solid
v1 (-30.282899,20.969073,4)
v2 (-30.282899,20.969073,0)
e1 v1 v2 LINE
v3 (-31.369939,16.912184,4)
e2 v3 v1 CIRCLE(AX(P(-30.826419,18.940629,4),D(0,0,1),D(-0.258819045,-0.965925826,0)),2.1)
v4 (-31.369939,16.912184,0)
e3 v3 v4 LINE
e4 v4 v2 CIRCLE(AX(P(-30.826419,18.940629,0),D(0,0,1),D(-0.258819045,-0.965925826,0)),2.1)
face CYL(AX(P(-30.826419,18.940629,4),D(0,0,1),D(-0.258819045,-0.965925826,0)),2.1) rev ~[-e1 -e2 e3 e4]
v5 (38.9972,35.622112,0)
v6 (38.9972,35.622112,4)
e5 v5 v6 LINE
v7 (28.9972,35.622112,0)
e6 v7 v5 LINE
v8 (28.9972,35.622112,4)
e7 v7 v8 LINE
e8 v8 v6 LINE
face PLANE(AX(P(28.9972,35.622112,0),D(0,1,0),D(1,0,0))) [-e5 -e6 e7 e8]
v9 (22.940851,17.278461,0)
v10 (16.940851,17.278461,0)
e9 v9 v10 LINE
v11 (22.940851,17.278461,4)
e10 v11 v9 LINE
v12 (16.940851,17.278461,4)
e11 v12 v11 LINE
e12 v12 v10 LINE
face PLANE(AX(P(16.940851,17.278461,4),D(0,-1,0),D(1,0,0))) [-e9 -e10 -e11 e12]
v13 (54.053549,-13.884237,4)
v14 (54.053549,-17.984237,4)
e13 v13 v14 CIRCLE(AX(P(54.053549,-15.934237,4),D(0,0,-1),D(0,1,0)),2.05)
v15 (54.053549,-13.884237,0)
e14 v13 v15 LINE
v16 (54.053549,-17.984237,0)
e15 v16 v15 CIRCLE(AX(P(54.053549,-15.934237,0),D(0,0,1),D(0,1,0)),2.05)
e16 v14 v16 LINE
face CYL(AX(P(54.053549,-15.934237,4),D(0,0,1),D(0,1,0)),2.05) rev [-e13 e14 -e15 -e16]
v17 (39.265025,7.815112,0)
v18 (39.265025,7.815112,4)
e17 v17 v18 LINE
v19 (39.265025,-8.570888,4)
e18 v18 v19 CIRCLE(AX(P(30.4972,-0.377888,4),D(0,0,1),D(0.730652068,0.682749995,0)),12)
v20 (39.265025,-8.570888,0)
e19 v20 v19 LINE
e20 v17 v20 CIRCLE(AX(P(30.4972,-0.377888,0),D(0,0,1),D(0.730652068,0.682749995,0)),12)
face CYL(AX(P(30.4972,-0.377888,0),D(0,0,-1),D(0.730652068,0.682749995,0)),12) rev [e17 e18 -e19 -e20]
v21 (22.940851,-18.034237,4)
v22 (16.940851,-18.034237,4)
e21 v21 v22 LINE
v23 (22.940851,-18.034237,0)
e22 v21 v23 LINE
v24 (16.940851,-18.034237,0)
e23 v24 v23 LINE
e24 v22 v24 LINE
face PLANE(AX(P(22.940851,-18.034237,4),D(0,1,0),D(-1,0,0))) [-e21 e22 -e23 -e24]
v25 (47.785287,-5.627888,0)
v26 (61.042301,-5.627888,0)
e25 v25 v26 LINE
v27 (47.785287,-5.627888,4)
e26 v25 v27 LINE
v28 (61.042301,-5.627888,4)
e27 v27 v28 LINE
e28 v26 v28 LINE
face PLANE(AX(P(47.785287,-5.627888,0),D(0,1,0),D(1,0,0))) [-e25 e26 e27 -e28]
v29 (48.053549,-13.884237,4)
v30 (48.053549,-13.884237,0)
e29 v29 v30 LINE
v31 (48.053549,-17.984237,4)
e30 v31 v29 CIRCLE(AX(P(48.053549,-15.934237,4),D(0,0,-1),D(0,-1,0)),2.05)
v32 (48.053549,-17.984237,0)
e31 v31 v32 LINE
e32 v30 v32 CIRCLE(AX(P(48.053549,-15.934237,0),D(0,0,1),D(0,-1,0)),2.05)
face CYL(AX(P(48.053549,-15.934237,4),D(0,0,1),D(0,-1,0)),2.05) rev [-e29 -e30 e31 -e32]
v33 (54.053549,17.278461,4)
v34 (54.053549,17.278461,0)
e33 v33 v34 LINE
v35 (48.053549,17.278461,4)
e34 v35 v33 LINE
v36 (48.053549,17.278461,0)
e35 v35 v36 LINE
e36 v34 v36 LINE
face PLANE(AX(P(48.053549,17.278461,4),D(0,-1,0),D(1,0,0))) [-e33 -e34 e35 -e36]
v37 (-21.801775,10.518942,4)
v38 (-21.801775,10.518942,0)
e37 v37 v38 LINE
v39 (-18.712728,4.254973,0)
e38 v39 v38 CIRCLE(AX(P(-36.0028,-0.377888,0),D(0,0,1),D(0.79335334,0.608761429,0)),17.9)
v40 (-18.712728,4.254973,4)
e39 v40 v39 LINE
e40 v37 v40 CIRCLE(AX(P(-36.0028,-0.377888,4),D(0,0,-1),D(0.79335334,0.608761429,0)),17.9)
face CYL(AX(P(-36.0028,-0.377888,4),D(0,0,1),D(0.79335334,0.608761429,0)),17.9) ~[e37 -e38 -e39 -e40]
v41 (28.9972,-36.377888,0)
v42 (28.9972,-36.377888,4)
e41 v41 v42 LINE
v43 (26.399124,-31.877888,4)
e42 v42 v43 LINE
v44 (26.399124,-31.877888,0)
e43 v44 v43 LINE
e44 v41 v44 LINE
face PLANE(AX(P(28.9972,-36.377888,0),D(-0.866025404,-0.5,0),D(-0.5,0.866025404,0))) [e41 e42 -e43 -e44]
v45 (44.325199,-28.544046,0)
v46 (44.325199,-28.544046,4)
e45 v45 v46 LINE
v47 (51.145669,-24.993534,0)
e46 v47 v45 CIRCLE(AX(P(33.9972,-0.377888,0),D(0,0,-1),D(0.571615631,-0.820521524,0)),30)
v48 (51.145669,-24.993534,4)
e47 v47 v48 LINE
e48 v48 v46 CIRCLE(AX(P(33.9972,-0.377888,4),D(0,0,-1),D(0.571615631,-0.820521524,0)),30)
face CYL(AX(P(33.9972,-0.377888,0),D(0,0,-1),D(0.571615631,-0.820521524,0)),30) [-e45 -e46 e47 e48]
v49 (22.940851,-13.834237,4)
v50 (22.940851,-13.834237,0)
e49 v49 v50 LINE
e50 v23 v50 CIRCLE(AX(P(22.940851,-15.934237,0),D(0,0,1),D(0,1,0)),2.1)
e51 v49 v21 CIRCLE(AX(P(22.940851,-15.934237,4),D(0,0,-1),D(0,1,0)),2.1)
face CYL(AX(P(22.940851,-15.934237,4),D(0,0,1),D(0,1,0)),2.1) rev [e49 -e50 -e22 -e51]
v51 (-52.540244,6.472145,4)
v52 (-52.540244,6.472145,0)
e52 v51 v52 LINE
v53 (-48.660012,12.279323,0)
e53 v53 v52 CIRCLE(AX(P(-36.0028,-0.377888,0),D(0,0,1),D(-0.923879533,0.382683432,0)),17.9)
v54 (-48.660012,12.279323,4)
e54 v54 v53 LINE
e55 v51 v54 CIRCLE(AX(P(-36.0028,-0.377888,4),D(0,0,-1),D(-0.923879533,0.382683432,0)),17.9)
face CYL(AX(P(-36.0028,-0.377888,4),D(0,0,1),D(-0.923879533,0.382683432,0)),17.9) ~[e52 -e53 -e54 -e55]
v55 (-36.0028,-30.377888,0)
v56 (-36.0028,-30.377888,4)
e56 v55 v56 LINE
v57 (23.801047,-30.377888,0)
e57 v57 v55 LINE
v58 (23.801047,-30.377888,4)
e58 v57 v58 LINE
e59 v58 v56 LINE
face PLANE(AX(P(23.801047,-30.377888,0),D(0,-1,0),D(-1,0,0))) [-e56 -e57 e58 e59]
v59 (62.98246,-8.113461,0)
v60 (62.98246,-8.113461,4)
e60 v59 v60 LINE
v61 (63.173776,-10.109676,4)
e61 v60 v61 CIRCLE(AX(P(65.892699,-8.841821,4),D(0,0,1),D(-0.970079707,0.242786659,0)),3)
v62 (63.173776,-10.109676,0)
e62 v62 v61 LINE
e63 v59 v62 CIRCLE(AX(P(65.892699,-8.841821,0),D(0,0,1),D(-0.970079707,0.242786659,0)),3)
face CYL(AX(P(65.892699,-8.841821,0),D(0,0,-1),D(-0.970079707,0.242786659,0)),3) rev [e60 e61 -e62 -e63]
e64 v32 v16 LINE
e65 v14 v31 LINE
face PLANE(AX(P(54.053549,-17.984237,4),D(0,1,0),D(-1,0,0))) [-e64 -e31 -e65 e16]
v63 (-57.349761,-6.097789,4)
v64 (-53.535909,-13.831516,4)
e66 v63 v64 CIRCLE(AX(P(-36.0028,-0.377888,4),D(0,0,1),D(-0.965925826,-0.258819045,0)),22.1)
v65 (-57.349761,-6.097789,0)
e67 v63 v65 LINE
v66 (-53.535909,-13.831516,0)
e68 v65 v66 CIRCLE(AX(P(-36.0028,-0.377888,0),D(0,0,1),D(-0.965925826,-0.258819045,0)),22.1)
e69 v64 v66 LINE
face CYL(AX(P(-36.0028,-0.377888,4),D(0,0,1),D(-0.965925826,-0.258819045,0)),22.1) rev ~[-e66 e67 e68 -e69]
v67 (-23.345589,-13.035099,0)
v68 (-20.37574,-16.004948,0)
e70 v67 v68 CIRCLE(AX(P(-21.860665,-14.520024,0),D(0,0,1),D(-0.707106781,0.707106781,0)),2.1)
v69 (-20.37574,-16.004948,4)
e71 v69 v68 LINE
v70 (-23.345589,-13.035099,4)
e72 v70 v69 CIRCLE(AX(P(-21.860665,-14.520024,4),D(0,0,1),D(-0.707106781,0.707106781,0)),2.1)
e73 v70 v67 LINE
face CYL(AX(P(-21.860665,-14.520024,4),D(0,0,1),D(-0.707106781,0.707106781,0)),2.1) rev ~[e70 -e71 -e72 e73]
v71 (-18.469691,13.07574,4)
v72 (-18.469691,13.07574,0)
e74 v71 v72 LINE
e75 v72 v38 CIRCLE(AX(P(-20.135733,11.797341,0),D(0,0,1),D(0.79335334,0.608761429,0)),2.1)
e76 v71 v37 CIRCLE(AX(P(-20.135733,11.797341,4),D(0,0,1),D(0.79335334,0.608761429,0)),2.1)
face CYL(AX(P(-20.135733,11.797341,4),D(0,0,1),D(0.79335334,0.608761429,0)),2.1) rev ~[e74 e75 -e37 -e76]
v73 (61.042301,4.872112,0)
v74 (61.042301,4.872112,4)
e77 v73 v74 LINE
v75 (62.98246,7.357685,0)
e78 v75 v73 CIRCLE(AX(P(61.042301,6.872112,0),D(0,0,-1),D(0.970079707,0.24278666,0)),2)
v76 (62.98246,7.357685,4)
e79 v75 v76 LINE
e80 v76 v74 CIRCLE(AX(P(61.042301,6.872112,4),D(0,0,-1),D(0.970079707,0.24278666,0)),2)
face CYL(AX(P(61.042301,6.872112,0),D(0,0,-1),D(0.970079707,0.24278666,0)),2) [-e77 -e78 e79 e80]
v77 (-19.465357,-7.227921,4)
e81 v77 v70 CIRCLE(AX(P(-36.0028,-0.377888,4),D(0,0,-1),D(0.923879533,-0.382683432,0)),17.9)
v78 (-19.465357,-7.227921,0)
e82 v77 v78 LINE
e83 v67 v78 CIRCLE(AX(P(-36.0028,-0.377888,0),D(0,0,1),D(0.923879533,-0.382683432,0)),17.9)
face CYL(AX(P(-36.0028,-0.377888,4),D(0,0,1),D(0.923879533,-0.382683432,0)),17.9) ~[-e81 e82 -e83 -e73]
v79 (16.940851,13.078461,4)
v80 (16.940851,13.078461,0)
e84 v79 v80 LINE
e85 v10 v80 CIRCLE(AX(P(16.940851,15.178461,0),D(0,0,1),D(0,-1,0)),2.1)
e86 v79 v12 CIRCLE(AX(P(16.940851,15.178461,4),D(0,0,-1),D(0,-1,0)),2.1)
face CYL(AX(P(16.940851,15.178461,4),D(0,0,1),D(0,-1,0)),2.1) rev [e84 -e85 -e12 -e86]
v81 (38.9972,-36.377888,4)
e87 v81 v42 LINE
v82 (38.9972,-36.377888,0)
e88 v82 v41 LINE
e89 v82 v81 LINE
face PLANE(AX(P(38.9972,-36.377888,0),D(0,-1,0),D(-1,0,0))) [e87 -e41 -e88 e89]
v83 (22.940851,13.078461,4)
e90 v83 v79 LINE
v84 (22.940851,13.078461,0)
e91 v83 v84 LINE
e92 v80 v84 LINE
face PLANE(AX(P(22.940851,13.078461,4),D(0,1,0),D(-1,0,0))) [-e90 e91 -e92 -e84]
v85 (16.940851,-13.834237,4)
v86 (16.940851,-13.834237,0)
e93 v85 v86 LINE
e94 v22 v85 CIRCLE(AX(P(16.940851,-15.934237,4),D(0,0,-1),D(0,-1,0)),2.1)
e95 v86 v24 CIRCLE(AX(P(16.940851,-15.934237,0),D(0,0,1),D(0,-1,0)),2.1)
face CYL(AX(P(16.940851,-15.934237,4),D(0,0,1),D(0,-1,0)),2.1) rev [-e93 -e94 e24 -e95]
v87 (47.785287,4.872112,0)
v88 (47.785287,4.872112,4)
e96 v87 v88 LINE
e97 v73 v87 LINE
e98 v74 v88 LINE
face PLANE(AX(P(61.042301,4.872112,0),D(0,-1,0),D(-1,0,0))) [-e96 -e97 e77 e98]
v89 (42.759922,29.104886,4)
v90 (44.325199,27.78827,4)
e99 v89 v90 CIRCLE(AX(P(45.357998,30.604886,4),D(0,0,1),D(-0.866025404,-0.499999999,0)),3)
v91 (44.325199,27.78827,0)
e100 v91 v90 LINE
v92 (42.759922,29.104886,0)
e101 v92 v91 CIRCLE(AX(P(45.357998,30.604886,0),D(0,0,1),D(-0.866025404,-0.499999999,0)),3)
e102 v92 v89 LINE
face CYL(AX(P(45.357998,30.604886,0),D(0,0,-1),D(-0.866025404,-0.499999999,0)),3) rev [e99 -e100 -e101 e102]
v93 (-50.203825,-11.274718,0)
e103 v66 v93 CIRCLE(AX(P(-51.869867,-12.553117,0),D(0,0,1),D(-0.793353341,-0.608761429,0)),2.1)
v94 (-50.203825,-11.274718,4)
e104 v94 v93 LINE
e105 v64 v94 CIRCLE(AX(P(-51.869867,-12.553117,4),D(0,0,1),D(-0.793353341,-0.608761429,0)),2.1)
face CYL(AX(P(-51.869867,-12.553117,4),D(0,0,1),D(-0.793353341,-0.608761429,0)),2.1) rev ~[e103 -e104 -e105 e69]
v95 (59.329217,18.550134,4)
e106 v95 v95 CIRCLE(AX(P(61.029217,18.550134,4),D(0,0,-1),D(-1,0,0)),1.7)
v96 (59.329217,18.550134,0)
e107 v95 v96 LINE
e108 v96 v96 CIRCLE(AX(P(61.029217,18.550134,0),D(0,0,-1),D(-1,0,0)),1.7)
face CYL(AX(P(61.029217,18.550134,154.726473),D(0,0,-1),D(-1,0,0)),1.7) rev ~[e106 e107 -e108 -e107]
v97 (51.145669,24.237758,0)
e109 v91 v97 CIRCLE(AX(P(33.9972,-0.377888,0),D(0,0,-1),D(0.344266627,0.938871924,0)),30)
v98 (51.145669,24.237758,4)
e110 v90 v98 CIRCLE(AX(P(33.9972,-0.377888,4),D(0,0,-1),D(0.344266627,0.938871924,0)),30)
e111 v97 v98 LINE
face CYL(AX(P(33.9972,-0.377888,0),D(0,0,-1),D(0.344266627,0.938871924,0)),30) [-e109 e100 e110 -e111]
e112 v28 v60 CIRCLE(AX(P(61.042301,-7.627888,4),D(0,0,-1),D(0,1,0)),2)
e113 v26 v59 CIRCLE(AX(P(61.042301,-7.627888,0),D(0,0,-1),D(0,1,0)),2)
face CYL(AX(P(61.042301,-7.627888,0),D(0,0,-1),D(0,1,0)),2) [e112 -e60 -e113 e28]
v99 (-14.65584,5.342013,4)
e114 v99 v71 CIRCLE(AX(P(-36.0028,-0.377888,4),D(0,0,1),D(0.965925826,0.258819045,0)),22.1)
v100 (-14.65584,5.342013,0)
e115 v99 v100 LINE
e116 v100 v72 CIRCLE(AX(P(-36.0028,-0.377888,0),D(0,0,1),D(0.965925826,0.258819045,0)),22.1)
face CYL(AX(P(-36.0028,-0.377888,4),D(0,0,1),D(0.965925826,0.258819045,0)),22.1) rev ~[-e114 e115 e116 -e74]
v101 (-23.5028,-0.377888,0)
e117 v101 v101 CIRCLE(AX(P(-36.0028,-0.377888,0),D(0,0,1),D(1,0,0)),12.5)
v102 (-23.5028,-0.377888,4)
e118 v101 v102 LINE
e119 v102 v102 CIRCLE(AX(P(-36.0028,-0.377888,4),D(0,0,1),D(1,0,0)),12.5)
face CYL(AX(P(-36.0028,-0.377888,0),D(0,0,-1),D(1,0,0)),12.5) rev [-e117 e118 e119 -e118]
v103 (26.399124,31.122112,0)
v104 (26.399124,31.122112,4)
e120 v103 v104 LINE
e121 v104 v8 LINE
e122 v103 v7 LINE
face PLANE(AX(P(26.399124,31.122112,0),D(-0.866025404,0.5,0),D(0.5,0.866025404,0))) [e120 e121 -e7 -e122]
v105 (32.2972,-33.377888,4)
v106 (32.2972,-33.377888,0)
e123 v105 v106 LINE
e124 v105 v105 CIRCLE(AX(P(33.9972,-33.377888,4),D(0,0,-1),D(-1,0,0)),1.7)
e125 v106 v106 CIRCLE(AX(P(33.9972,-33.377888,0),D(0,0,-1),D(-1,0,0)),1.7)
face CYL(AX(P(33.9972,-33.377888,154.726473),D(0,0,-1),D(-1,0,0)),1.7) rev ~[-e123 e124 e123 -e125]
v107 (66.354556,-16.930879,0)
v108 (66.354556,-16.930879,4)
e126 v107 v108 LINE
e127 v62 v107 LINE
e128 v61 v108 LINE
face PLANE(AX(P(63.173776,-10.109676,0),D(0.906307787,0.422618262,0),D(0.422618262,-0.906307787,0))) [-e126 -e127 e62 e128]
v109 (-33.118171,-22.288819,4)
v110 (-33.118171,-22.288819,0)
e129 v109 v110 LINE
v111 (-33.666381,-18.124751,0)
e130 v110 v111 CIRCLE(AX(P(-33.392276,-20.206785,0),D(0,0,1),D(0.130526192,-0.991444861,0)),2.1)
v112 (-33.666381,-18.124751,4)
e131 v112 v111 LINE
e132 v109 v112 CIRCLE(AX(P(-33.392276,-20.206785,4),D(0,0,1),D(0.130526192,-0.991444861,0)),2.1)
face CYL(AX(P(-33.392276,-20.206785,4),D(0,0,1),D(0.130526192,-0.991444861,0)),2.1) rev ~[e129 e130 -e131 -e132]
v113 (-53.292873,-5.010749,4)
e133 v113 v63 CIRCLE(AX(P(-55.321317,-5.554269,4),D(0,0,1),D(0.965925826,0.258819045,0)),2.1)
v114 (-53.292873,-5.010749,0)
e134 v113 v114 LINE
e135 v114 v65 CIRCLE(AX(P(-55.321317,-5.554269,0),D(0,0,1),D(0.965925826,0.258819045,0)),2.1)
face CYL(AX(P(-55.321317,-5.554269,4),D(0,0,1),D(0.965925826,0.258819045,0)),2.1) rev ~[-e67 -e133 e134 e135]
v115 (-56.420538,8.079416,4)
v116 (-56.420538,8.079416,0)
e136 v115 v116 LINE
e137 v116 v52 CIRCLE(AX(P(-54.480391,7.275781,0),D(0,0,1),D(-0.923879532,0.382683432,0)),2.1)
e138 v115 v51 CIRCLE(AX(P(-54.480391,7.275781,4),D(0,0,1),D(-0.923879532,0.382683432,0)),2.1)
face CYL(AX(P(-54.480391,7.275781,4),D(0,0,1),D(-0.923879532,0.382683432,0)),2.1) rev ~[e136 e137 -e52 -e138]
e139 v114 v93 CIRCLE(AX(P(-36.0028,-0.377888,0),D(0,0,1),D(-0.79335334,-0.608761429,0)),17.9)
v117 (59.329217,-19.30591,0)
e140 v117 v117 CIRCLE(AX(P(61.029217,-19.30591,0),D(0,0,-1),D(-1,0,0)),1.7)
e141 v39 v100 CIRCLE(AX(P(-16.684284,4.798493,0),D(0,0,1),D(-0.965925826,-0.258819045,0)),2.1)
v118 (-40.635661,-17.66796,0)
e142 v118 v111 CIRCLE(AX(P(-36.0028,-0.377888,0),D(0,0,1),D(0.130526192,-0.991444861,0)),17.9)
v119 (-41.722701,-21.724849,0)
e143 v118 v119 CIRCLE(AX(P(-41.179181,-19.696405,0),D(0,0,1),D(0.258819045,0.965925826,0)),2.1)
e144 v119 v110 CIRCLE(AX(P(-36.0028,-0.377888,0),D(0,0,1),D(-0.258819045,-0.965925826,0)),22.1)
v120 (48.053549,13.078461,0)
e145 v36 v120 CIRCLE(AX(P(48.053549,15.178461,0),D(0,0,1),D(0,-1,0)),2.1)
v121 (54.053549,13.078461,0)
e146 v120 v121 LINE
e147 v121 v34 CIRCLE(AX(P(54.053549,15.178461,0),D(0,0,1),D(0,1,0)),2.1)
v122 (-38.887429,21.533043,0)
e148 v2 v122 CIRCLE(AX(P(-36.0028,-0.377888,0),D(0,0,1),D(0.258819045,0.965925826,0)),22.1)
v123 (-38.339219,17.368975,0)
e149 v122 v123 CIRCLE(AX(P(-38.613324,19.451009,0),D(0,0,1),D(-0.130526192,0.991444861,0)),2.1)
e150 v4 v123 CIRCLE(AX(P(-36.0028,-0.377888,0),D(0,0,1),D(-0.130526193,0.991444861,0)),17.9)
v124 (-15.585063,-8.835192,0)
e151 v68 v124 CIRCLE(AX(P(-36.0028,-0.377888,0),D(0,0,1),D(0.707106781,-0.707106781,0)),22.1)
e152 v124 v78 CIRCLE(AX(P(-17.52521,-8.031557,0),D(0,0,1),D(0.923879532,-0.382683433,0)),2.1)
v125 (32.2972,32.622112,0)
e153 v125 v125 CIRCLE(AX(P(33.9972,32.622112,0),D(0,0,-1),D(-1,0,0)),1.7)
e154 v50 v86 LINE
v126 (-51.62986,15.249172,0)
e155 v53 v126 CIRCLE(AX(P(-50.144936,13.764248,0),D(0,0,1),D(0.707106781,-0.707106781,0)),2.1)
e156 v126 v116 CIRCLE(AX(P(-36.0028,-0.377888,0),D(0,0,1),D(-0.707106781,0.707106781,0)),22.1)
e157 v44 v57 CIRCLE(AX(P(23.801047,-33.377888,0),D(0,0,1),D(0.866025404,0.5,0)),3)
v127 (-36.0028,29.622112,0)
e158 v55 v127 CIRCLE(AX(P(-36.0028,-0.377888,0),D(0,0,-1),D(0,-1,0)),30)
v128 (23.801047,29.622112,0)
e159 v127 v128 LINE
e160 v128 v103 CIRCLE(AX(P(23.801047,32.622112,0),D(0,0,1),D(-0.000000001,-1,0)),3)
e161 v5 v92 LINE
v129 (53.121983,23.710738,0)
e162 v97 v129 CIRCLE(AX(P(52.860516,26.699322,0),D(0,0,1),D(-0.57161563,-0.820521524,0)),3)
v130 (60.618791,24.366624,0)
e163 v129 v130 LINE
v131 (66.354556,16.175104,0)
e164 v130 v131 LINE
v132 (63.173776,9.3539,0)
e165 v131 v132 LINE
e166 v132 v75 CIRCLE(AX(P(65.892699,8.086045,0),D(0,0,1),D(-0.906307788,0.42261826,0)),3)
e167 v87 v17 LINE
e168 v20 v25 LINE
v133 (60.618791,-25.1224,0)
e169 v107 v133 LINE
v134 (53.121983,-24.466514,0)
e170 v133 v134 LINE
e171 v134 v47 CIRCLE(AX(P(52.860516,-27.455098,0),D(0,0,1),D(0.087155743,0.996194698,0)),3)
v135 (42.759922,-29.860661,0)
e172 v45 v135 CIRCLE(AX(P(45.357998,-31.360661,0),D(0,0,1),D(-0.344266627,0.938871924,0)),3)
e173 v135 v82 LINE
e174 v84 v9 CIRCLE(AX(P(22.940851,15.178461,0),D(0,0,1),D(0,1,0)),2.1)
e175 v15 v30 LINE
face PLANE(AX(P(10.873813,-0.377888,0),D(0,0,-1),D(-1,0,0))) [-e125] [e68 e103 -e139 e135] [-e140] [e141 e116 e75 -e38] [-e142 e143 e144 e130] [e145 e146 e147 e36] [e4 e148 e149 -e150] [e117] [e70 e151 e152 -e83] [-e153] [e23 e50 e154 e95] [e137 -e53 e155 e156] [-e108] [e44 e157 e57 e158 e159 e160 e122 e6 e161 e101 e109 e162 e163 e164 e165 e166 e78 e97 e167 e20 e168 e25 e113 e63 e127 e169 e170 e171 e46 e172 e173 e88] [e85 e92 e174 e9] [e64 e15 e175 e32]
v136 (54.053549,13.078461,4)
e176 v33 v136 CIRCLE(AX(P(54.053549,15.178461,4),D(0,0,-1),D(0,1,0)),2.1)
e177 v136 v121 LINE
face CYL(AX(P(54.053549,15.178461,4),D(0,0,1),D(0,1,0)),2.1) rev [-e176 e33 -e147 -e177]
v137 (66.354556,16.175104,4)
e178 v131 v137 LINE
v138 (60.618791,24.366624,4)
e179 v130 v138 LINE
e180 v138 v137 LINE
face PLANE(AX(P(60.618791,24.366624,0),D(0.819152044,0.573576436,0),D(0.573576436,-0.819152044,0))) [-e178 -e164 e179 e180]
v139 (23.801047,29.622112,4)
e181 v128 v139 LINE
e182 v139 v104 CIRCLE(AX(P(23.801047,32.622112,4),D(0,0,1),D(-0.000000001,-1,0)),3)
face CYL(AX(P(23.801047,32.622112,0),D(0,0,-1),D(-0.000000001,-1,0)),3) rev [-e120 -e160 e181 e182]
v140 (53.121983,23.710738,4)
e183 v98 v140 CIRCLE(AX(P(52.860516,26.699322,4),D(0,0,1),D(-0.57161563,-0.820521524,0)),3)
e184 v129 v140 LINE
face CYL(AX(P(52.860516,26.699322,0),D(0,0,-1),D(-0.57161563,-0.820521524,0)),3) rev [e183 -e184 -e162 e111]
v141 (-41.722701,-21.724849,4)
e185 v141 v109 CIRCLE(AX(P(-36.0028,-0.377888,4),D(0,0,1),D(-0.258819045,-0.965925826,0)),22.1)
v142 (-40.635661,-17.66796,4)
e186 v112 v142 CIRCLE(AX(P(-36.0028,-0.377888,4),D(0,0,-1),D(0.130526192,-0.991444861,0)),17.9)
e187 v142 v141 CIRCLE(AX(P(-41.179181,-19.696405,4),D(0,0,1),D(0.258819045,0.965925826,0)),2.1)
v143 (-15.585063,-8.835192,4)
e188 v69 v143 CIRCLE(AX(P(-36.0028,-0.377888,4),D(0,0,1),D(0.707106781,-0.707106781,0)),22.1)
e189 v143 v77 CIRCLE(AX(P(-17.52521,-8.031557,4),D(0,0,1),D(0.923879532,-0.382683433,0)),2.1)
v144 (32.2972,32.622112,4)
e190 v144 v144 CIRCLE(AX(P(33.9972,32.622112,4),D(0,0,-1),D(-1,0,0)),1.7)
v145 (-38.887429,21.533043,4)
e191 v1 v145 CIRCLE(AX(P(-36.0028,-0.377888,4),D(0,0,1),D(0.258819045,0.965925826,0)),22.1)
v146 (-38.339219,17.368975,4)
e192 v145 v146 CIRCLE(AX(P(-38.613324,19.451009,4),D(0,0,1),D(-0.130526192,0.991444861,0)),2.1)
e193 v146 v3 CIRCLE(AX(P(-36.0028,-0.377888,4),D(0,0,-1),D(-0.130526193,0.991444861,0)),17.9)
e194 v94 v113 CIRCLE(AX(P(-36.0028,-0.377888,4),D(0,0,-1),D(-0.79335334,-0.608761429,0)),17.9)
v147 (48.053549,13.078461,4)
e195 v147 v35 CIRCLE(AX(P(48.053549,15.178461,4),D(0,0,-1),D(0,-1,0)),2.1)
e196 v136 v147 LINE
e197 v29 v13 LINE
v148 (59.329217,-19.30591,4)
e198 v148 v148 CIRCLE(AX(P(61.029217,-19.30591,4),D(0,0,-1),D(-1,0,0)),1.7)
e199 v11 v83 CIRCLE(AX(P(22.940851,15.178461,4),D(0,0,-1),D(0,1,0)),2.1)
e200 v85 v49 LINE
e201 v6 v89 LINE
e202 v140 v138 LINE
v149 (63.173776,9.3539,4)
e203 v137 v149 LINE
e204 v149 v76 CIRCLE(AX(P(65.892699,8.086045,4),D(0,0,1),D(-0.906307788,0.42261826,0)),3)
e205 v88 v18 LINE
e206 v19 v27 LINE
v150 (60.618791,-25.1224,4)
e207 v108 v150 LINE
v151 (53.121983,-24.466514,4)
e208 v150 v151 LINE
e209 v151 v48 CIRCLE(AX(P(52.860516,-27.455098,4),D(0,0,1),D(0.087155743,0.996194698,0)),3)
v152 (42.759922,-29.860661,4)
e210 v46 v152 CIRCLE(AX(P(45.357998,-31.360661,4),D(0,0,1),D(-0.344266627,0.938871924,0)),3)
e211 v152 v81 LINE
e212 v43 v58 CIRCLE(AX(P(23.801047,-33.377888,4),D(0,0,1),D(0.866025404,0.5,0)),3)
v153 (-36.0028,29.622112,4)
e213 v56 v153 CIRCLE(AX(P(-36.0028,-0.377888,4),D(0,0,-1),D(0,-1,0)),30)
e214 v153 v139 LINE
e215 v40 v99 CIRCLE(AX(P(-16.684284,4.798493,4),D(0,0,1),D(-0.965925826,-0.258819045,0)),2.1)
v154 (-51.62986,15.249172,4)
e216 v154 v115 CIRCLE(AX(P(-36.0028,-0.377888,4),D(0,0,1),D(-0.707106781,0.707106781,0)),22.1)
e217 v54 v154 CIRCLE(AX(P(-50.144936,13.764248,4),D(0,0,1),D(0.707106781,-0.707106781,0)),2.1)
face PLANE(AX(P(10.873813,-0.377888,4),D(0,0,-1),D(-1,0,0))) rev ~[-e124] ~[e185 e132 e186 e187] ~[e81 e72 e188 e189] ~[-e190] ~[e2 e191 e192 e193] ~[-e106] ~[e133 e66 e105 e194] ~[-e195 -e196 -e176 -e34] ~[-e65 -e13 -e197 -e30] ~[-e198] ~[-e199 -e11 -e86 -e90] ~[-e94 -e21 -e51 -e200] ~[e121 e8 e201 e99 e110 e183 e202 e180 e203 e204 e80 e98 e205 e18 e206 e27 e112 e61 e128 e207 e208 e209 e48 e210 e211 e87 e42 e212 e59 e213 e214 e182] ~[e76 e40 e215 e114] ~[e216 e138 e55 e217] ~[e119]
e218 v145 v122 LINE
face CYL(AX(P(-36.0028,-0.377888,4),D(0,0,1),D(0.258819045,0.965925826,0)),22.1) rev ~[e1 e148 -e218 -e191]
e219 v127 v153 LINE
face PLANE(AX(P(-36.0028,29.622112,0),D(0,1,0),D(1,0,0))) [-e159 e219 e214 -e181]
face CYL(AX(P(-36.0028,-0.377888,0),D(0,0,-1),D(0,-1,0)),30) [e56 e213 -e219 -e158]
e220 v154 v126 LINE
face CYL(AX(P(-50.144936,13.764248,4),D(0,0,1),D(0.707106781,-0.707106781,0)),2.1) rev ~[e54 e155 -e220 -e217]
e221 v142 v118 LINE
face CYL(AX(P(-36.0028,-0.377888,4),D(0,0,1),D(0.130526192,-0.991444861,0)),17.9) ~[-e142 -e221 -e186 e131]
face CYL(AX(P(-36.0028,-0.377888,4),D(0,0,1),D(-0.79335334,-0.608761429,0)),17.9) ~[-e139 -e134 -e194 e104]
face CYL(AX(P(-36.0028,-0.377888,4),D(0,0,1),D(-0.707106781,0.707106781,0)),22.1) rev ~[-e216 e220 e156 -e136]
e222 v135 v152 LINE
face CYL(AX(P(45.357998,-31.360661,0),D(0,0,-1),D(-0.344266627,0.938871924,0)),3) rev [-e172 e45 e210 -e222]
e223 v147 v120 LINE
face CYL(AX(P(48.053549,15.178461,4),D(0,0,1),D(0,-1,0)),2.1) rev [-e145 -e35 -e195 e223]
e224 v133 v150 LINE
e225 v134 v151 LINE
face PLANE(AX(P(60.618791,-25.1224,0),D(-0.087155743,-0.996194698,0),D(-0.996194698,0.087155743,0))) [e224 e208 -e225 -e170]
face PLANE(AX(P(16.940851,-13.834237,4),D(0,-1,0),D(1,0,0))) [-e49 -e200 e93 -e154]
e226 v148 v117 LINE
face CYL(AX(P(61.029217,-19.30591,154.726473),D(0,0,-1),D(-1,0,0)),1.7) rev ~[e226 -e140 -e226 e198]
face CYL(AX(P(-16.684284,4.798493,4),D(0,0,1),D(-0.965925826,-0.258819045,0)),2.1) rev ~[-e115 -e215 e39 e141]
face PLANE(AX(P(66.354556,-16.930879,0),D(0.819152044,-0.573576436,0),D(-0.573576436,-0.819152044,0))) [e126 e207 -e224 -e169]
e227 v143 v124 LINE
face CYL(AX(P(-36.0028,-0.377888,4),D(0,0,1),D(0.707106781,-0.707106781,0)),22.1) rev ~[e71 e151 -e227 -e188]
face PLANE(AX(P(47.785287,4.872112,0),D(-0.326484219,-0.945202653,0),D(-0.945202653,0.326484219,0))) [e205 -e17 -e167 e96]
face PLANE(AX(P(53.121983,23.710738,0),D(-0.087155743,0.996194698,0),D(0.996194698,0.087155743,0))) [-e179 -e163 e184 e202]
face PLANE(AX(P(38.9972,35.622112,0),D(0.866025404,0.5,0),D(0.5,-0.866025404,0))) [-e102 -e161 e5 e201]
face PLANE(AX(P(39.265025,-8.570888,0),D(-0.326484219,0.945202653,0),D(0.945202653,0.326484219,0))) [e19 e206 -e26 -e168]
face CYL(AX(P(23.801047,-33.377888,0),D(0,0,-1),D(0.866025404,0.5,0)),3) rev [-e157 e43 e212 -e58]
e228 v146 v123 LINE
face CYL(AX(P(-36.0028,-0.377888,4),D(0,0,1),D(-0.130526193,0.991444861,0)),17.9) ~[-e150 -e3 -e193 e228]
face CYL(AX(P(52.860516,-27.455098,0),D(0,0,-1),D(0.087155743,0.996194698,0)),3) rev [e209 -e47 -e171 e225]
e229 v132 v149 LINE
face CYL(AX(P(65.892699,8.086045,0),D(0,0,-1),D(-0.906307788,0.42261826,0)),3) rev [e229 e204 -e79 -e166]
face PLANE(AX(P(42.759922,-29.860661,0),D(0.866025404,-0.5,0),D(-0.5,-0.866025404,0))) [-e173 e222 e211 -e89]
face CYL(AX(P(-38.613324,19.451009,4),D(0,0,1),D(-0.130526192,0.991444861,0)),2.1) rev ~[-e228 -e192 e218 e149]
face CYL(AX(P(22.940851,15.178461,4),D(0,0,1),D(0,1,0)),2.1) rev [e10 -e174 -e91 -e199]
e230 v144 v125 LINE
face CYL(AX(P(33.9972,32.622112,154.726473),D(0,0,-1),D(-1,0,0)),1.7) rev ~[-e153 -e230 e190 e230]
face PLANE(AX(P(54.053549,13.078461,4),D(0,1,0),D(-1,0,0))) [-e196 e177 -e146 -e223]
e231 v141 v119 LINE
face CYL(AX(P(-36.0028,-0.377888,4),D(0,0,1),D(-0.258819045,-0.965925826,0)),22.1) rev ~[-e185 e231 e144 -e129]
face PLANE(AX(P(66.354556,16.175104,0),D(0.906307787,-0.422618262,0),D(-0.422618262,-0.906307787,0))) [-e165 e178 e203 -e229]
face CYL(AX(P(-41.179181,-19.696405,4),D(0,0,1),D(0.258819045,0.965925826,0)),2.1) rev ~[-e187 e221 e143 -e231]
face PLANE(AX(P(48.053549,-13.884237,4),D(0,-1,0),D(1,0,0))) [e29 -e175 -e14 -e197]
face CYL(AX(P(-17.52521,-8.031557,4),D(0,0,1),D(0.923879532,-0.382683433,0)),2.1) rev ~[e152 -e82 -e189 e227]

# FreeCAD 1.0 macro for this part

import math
import FreeCAD as App
import Part
import Sketcher
from FreeCAD import Vector
Q = App.Units.Quantity

doc = App.newDocument("Part")
body = doc.addObject("PartDesign::Body", "Body")

sketch1 = body.newObject("Sketcher::SketchObject", "Sketch")
sketch1.AttachmentSupport = (doc.getObject("XY_Plane"), [""])
sketch1.MapMode = "FlatFace"
sketch1.addGeometry([
    Part.LineSegment(Vector(53.1, -24.5, 0), Vector(60.6, -25.1, 0)),
    Part.LineSegment(Vector(60.6, -25.1, 0), Vector(66.4, -16.9, 0)),
    Part.LineSegment(Vector(66.4, -16.9, 0), Vector(63.2, -10.1, 0)),
    Part.ArcOfCircle(Part.Circle(Vector(65.9, -8.8, 0), Vector(0, 0, 1), 3), math.radians(166), math.radians(205)),
    Part.ArcOfCircle(Part.Circle(Vector(61, -7.6, 0), Vector(0, 0, 1), 2), math.radians(-14), math.radians(90)),
    Part.LineSegment(Vector(61, -5.6, 0), Vector(47.8, -5.6, 0)),
    Part.LineSegment(Vector(47.8, -5.6, 0), Vector(39.3, -8.6, 0)),
    Part.ArcOfCircle(Part.Circle(Vector(30.5, -0.4, 0), Vector(0, 0, 1), 12), math.radians(43), math.radians(317)),
    Part.LineSegment(Vector(39.3, 7.8, 0), Vector(47.8, 4.9, 0)),
    Part.LineSegment(Vector(47.8, 4.9, 0), Vector(61, 4.9, 0)),
    Part.ArcOfCircle(Part.Circle(Vector(61, 6.9, 0), Vector(0, 0, 1), 2), math.radians(-90), math.radians(14)),
    Part.ArcOfCircle(Part.Circle(Vector(65.9, 8.1, 0), Vector(0, 0, 1), 3), math.radians(155), math.radians(194)),
    Part.LineSegment(Vector(63.2, 9.4, 0), Vector(66.4, 16.2, 0)),
    Part.LineSegment(Vector(66.4, 16.2, 0), Vector(60.6, 24.4, 0)),
    Part.LineSegment(Vector(60.6, 24.4, 0), Vector(53.1, 23.7, 0)),
    Part.ArcOfCircle(Part.Circle(Vector(52.9, 26.7, 0), Vector(0, 0, 1), 3), math.radians(-125), math.radians(-85)),
    Part.ArcOfCircle(Part.Circle(Vector(34, -0.4, 0), Vector(0, 0, 1), 30), math.radians(55.14), math.radians(69.86)),
    Part.ArcOfCircle(Part.Circle(Vector(45.4, 30.6, 0), Vector(0, 0, 1), 3), math.radians(-150), math.radians(-110)),
    Part.LineSegment(Vector(42.8, 29.1, 0), Vector(39, 35.6, 0)),
    Part.LineSegment(Vector(39, 35.6, 0), Vector(29, 35.6, 0)),
    Part.LineSegment(Vector(29, 35.6, 0), Vector(26.4, 31.1, 0)),
    Part.ArcOfCircle(Part.Circle(Vector(23.8, 32.6, 0), Vector(0, 0, 1), 3), math.radians(-90), math.radians(-30)),
    Part.LineSegment(Vector(23.8, 29.6, 0), Vector(-36, 29.6, 0)),
    Part.ArcOfCircle(Part.Circle(Vector(-36, -0.4, 0), Vector(0, 0, 1), 30), math.radians(90), math.radians(270)),
    Part.LineSegment(Vector(-36, -30.4, 0), Vector(23.8, -30.4, 0)),
    Part.ArcOfCircle(Part.Circle(Vector(23.8, -33.4, 0), Vector(0, 0, 1), 3), math.radians(30), math.radians(90)),
    Part.LineSegment(Vector(26.4, -31.9, 0), Vector(29, -36.4, 0)),
    Part.LineSegment(Vector(29, -36.4, 0), Vector(39, -36.4, 0)),
    Part.LineSegment(Vector(39, -36.4, 0), Vector(42.8, -29.9, 0)),
    Part.ArcOfCircle(Part.Circle(Vector(45.4, -31.4, 0), Vector(0, 0, 1), 3), math.radians(110), math.radians(150)),
    Part.ArcOfCircle(Part.Circle(Vector(34, -0.4, 0), Vector(0, 0, 1), 30), math.radians(-69.86), math.radians(-55.14)),
    Part.ArcOfCircle(Part.Circle(Vector(52.9, -27.5, 0), Vector(0, 0, 1), 3), math.radians(85), math.radians(125)),
    Part.Circle(Vector(-36, -0.4, 0), Vector(0, 0, 1), 12.5),
], False)
sketch1.addConstraint([
    Sketcher.Constraint("Coincident", 0, 2, 1, 1),
    Sketcher.Constraint("Coincident", 1, 2, 2, 1),
    Sketcher.Constraint("Tangent", 2, 2, 3, 2),
    Sketcher.Constraint("Tangent", 3, 1, 4, 1),
    Sketcher.Constraint("Tangent", 4, 2, 5, 1),
    Sketcher.Constraint("Coincident", 5, 2, 6, 1),
    Sketcher.Constraint("Coincident", 6, 2, 7, 2),
    Sketcher.Constraint("Coincident", 7, 1, 8, 1),
    Sketcher.Constraint("Coincident", 8, 2, 9, 1),
    Sketcher.Constraint("Tangent", 9, 2, 10, 1),
    Sketcher.Constraint("Tangent", 10, 2, 11, 2),
    Sketcher.Constraint("Tangent", 11, 1, 12, 1),
    Sketcher.Constraint("Coincident", 12, 2, 13, 1),
    Sketcher.Constraint("Coincident", 13, 2, 14, 1),
    Sketcher.Constraint("Tangent", 14, 2, 15, 2),
    Sketcher.Constraint("Tangent", 15, 1, 16, 1),
    Sketcher.Constraint("Tangent", 16, 2, 17, 2),
    Sketcher.Constraint("Tangent", 17, 1, 18, 1),
    Sketcher.Constraint("Coincident", 18, 2, 19, 1),
    Sketcher.Constraint("Coincident", 19, 2, 20, 1),
    Sketcher.Constraint("Tangent", 20, 2, 21, 2),
    Sketcher.Constraint("Tangent", 21, 1, 22, 1),
    Sketcher.Constraint("Tangent", 22, 2, 23, 1),
    Sketcher.Constraint("Tangent", 23, 2, 24, 1),
    Sketcher.Constraint("Tangent", 24, 2, 25, 2),
    Sketcher.Constraint("Tangent", 25, 1, 26, 1),
    Sketcher.Constraint("Coincident", 26, 2, 27, 1),
    Sketcher.Constraint("Coincident", 27, 2, 28, 1),
    Sketcher.Constraint("Tangent", 28, 2, 29, 2),
    Sketcher.Constraint("Tangent", 29, 1, 30, 1),
    Sketcher.Constraint("Tangent", 30, 2, 31, 2),
    Sketcher.Constraint("Tangent", 31, 1, 0, 1),
    Sketcher.Constraint("Horizontal", 5),
    Sketcher.Constraint("Horizontal", 9),
    Sketcher.Constraint("Horizontal", 19),
    Sketcher.Constraint("Horizontal", 22),
    Sketcher.Constraint("Horizontal", 24),
    Sketcher.Constraint("Horizontal", 27),
    Sketcher.Constraint("Coincident", 30, 3, 16, 3),
    Sketcher.Constraint("Coincident", 32, 3, 23, 3),
    Sketcher.Constraint("Equal", 4, 10),
    Sketcher.Constraint("Equal", 3, 11),
    Sketcher.Constraint("Equal", 11, 15),
    Sketcher.Constraint("Equal", 15, 17),
    Sketcher.Constraint("Equal", 17, 21),
    Sketcher.Constraint("Equal", 16, 23),
    Sketcher.Constraint("Equal", 21, 25),
    Sketcher.Constraint("Equal", 25, 29),
    Sketcher.Constraint("Equal", 23, 30),
    Sketcher.Constraint("Equal", 29, 31),
    Sketcher.Constraint("Parallel", 18, 26),
    Sketcher.Constraint("Parallel", 20, 28),
    Sketcher.Constraint("Horizontal", 7, 3, 16, 3),
    Sketcher.Constraint("Horizontal", 16, 3, 23, 3),
    Sketcher.Constraint("Vertical", 4, 3, 10, 3),
    Sketcher.Constraint("Vertical", 3, 3, 11, 3),
    Sketcher.Constraint("Vertical", 21, 3, 25, 3),
    Sketcher.Constraint("Vertical", 17, 3, 29, 3),
    Sketcher.Constraint("Vertical", 15, 3, 31, 3),
    Sketcher.Constraint("Vertical", 6, 2, 7, 1),
    Sketcher.Constraint("Vertical", 5, 2, 8, 2),
    Sketcher.Constraint("Vertical", 2, 2, 11, 1),
    Sketcher.Constraint("Vertical", 1, 2, 12, 2),
    Sketcher.Constraint("Vertical", 0, 2, 13, 2),
    Sketcher.Constraint("Vertical", 20, 2, 25, 1),
    Sketcher.Constraint("Vertical", 19, 2, 26, 2),
    Sketcher.Constraint("Vertical", 14, 2, 31, 1),
    Sketcher.Constraint("Equal", 6, 8),
    Sketcher.Constraint("Equal", 14, 18),
    Sketcher.Constraint("Diameter", 32, Q("25 mm")),
    Sketcher.Constraint("Radius", 3, Q("3 mm")),
    Sketcher.Constraint("Radius", 4, Q("2 mm")),
    Sketcher.Constraint("Radius", 7, Q("12 mm")),
    Sketcher.Constraint("Radius", 16, Q("30 mm")),
    Sketcher.Constraint("DistanceX", 19, 2, 19, 1, Q("10 mm")),
    Sketcher.Constraint("Angle", 0, Q("-5 deg")),
    Sketcher.Constraint("Angle", 1, Q("55 deg")),
    Sketcher.Constraint("Angle", 2, Q("115 deg")),
    Sketcher.Constraint("Angle", 18, Q("120 deg")),
    Sketcher.Constraint("Distance", 1, Q("10 mm")),
    Sketcher.Constraint("DistanceX", 23, 3, 16, 3, Q("70 mm")),
    Sketcher.Constraint("DistanceY", 21, 3, 18, 2, Q("3 mm")),
    Sketcher.Constraint("DistanceY", 4, 3, 10, 3, Q("14.5 mm")),
    Sketcher.Constraint("DistanceX", 7, 3, 16, 3, Q("3.5 mm")),
    Sketcher.Constraint("DistanceX", -1, 1, 17, 3, Q("45.357998 mm")),
    Sketcher.Constraint("DistanceY", 6, 2, 5, 2, Q("2.943 mm")),
    Sketcher.Constraint("DistanceX", 27, 2, 29, 1, Q("5.327999 mm")),
    Sketcher.Constraint("DistanceX", -1, 1, 3, 3, Q("65.892699 mm")),
    Sketcher.Constraint("DistanceX", -1, 1, 4, 3, Q("61.042301 mm")),
    Sketcher.Constraint("DistanceY", 31, 3, -1, 1, Q("27.455098 mm")),
    Sketcher.Constraint("Distance", 6, Q("9.014218 mm")),
])
pad1 = body.newObject("PartDesign::Pad", "Pad")
pad1.Profile = sketch1
pad1.Length = 4

sketch2 = body.newObject("Sketcher::SketchObject", "Sketch001")
sketch2.AttachmentSupport = (doc.getObject("XY_Plane"), [""])
sketch2.MapMode = "FlatFace"
sketch2.AttachmentOffset = App.Placement(Vector(0, 0, 4), App.Rotation())
sketch2.addGeometry([
    Part.Circle(Vector(34, 32.6, 0), Vector(0, 0, 1), 1.7),
    Part.Circle(Vector(61, 18.6, 0), Vector(0, 0, 1), 1.7),
    Part.Circle(Vector(61, -19.3, 0), Vector(0, 0, 1), 1.7),
    Part.Circle(Vector(34, -33.4, 0), Vector(0, 0, 1), 1.7),
], False)
sketch2.addConstraint([
    Sketcher.Constraint("Equal", 0, 1),
    Sketcher.Constraint("Equal", 1, 2),
    Sketcher.Constraint("Equal", 2, 3),
    Sketcher.Constraint("Vertical", 1, 3, 2, 3),
    Sketcher.Constraint("Vertical", 0, 3, 3, 3),
    Sketcher.Constraint("Diameter", 0, Q("3.4 mm")),
    Sketcher.Constraint("DistanceY", 3, 3, 0, 3, Q("66 mm")),
    Sketcher.Constraint("DistanceX", -1, 1, 0, 3, Q("33.9972 mm")),
    Sketcher.Constraint("DistanceY", 2, 3, -1, 1, Q("19.30591 mm")),
    Sketcher.Constraint("DistanceY", -1, 1, 0, 3, Q("32.622112 mm")),
    Sketcher.Constraint("DistanceX", -1, 1, 1, 3, Q("61.029217 mm")),
    Sketcher.Constraint("DistanceY", -1, 1, 1, 3, Q("18.550134 mm")),
])
doc.recompute()
hole = body.newObject("PartDesign::Hole", "Hole")
hole.Profile = sketch2
hole.ThreadType = "None"
hole.Diameter = 3.4
hole.DepthType = "ThroughAll"

sketch3 = body.newObject("Sketcher::SketchObject", "Sketch002")
sketch3.AttachmentSupport = (doc.getObject("XY_Plane"), [""])
sketch3.MapMode = "FlatFace"
sketch3.AttachmentOffset = App.Placement(Vector(0, 0, 4), App.Rotation())
sketch3.addGeometry([
    Part.ArcOfCircle(Part.Circle(Vector(-36, -0.4, 0), Vector(0, 0, 1), 22.1), math.radians(75), math.radians(97)),
    Part.ArcOfCircle(Part.Circle(Vector(-38.6, 19.5, 0), Vector(0, 0, 1), 2.1), math.radians(98), math.radians(278)),
    Part.ArcOfCircle(Part.Circle(Vector(-36, -0.4, 0), Vector(0, 0, 1), 17.9), math.radians(75), math.radians(98)),
    Part.ArcOfCircle(Part.Circle(Vector(-30.8, 18.9, 0), Vector(0, 0, 1), 2.1), math.radians(-105), math.radians(75)),
    Part.ArcOfCircle(Part.Circle(Vector(-36, -0.4, 0), Vector(0, 0, 1), 22.1), math.radians(15), math.radians(37)),
    Part.ArcOfCircle(Part.Circle(Vector(-20.1, 11.8, 0), Vector(0, 0, 1), 2.1), math.radians(38), math.radians(217)),
    Part.ArcOfCircle(Part.Circle(Vector(-36, -0.4, 0), Vector(0, 0, 1), 17.9), math.radians(15), math.radians(38)),
    Part.ArcOfCircle(Part.Circle(Vector(-16.7, 4.8, 0), Vector(0, 0, 1), 2.1), math.radians(-165), math.radians(15)),
    Part.ArcOfCircle(Part.Circle(Vector(-36, -0.4, 0), Vector(0, 0, 1), 22.1), math.radians(-45), math.radians(-23)),
    Part.ArcOfCircle(Part.Circle(Vector(-17.5, -8, 0), Vector(0, 0, 1), 2.1), math.radians(-23), math.radians(158)),
    Part.ArcOfCircle(Part.Circle(Vector(-36, -0.4, 0), Vector(0, 0, 1), 17.9), math.radians(-45), math.radians(-22)),
    Part.ArcOfCircle(Part.Circle(Vector(-21.9, -14.5, 0), Vector(0, 0, 1), 2.1), math.radians(135), math.radians(315)),
    Part.ArcOfCircle(Part.Circle(Vector(-36, -0.4, 0), Vector(0, 0, 1), 22.1), math.radians(-105), math.radians(-82)),
    Part.ArcOfCircle(Part.Circle(Vector(-33.4, -20.2, 0), Vector(0, 0, 1), 2.1), math.radians(-83), math.radians(98)),
    Part.ArcOfCircle(Part.Circle(Vector(-36, -0.4, 0), Vector(0, 0, 1), 17.9), math.radians(-105), math.radians(-83)),
    Part.ArcOfCircle(Part.Circle(Vector(-41.2, -19.7, 0), Vector(0, 0, 1), 2.1), math.radians(75), math.radians(255)),
    Part.ArcOfCircle(Part.Circle(Vector(-36, -0.4, 0), Vector(0, 0, 1), 22.1), math.radians(-165), math.radians(-143)),
    Part.ArcOfCircle(Part.Circle(Vector(-51.9, -12.6, 0), Vector(0, 0, 1), 2.1), math.radians(-143), math.radians(38)),
    Part.ArcOfCircle(Part.Circle(Vector(-36, -0.4, 0), Vector(0, 0, 1), 17.9), math.radians(-165), math.radians(-143)),
    Part.ArcOfCircle(Part.Circle(Vector(-55.3, -5.6, 0), Vector(0, 0, 1), 2.1), math.radians(15), math.radians(195)),
    Part.ArcOfCircle(Part.Circle(Vector(-36, -0.4, 0), Vector(0, 0, 1), 22.1), math.radians(135), math.radians(157)),
    Part.ArcOfCircle(Part.Circle(Vector(-54.5, 7.3, 0), Vector(0, 0, 1), 2.1), math.radians(157), math.radians(337)),
    Part.ArcOfCircle(Part.Circle(Vector(-36, -0.4, 0), Vector(0, 0, 1), 17.9), math.radians(135), math.radians(157)),
    Part.ArcOfCircle(Part.Circle(Vector(-50.1, 13.8, 0), Vector(0, 0, 1), 2.1), math.radians(-45), math.radians(135)),
], False)
sketch3.addConstraint([
    Sketcher.Constraint("Tangent", 0, 2, 1, 1),
    Sketcher.Constraint("Tangent", 1, 2, 2, 2),
    Sketcher.Constraint("Tangent", 2, 1, 3, 1),
    Sketcher.Constraint("Tangent", 3, 2, 0, 1),
    Sketcher.Constraint("Tangent", 4, 2, 5, 1),
    Sketcher.Constraint("Tangent", 5, 2, 6, 2),
    Sketcher.Constraint("Tangent", 6, 1, 7, 1),
    Sketcher.Constraint("Tangent", 7, 2, 4, 1),
    Sketcher.Constraint("Tangent", 8, 2, 9, 1),
    Sketcher.Constraint("Tangent", 9, 2, 10, 2),
    Sketcher.Constraint("Tangent", 10, 1, 11, 1),
    Sketcher.Constraint("Tangent", 11, 2, 8, 1),
    Sketcher.Constraint("Tangent", 12, 2, 13, 1),
    Sketcher.Constraint("Tangent", 13, 2, 14, 2),
    Sketcher.Constraint("Tangent", 14, 1, 15, 1),
    Sketcher.Constraint("Tangent", 15, 2, 12, 1),
    Sketcher.Constraint("Tangent", 16, 2, 17, 1),
    Sketcher.Constraint("Tangent", 17, 2, 18, 2),
    Sketcher.Constraint("Tangent", 18, 1, 19, 1),
    Sketcher.Constraint("Tangent", 19, 2, 16, 1),
    Sketcher.Constraint("Tangent", 20, 2, 21, 1),
    Sketcher.Constraint("Tangent", 21, 2, 22, 2),
    Sketcher.Constraint("Tangent", 22, 1, 23, 1),
    Sketcher.Constraint("Tangent", 23, 2, 20, 1),
    Sketcher.Constraint("Coincident", 2, 3, 0, 3),
    Sketcher.Constraint("Coincident", 4, 3, 0, 3),
    Sketcher.Constraint("Coincident", 6, 3, 0, 3),
    Sketcher.Constraint("Coincident", 8, 3, 0, 3),
    Sketcher.Constraint("Coincident", 10, 3, 0, 3),
    Sketcher.Constraint("Coincident", 12, 3, 0, 3),
    Sketcher.Constraint("Coincident", 14, 3, 0, 3),
    Sketcher.Constraint("Coincident", 16, 3, 0, 3),
    Sketcher.Constraint("Coincident", 18, 3, 0, 3),
    Sketcher.Constraint("Coincident", 20, 3, 0, 3),
    Sketcher.Constraint("Coincident", 22, 3, 0, 3),
    Sketcher.Constraint("Equal", 0, 4),
    Sketcher.Constraint("Equal", 3, 5),
    Sketcher.Constraint("Equal", 4, 8),
    Sketcher.Constraint("Equal", 7, 9),
    Sketcher.Constraint("Equal", 8, 12),
    Sketcher.Constraint("Equal", 11, 13),
    Sketcher.Constraint("Equal", 12, 16),
    Sketcher.Constraint("Equal", 15, 17),
    Sketcher.Constraint("Equal", 16, 20),
    Sketcher.Constraint("Equal", 19, 21),
    Sketcher.Constraint("Radius", 0, Q("22.1 mm")),
    Sketcher.Constraint("Radius", 1, Q("2.1 mm")),
    Sketcher.Constraint("DistanceX", 0, 3, -1, 1, Q("36.0028 mm")),
    Sketcher.Constraint("DistanceX", 3, 2, -1, 1, Q("30.282899 mm")),
    Sketcher.Constraint("DistanceY", 10, 1, -1, 1, Q("13.035099 mm")),
    Sketcher.Constraint("DistanceX", 15, 2, -1, 1, Q("41.722701 mm")),
    Sketcher.Constraint("DistanceX", 1, 2, 3, 3, Q("7.5128 mm")),
    Sketcher.Constraint("DistanceY", 5, 3, 4, 2, Q("1.278399 mm")),
    Sketcher.Constraint("DistanceX", 15, 3, 13, 2, Q("7.5128 mm")),
    Sketcher.Constraint("DistanceY", 16, 2, 17, 3, Q("1.278399 mm")),
    Sketcher.Constraint("DistanceY", 0, 3, -1, 1, Q("0.377888 mm")),
    Sketcher.Constraint("DistanceX", 9, 3, -1, 1, Q("17.52521 mm")),
    Sketcher.Constraint("DistanceY", 19, 3, -1, 1, Q("5.554269 mm")),
    Sketcher.Constraint("DistanceX", 21, 3, -1, 1, Q("54.480391 mm")),
    Sketcher.Constraint("DistanceX", 7, 2, -1, 1, Q("14.65584 mm")),
    Sketcher.Constraint("DistanceX", 22, 1, -1, 1, Q("48.660012 mm")),
])
pocket1 = body.newObject("PartDesign::Pocket", "Pocket")
pocket1.Profile = sketch3
pocket1.Type = "ThroughAll"

sketch4 = body.newObject("Sketcher::SketchObject", "Sketch003")
sketch4.AttachmentSupport = (doc.getObject("XY_Plane"), [""])
sketch4.MapMode = "FlatFace"
sketch4.AttachmentOffset = App.Placement(Vector(0, 0, 4), App.Rotation())
sketch4.addGeometry([
    Part.LineSegment(Vector(22.9, 17.3, 0), Vector(16.9, 17.3, 0)),
    Part.ArcOfCircle(Part.Circle(Vector(16.9, 15.2, 0), Vector(0, 0, 1), 2.1), math.radians(90), math.radians(270)),
    Part.LineSegment(Vector(16.9, 13.1, 0), Vector(22.9, 13.1, 0)),
    Part.ArcOfCircle(Part.Circle(Vector(22.9, 15.2, 0), Vector(0, 0, 1), 2.1), math.radians(-90), math.radians(90)),
    Part.LineSegment(Vector(54.1, 17.3, 0), Vector(48.1, 17.3, 0)),
    Part.ArcOfCircle(Part.Circle(Vector(48.1, 15.2, 0), Vector(0, 0, 1), 2.1), math.radians(90), math.radians(270)),
    Part.LineSegment(Vector(48.1, 13.1, 0), Vector(54.1, 13.1, 0)),
    Part.ArcOfCircle(Part.Circle(Vector(54.1, 15.2, 0), Vector(0, 0, 1), 2.1), math.radians(-90), math.radians(90)),
    Part.LineSegment(Vector(48.1, -18, 0), Vector(54.1, -18, 0)),
    Part.ArcOfCircle(Part.Circle(Vector(54.1, -15.9, 0), Vector(0, 0, 1), 2), math.radians(-90), math.radians(90)),
    Part.LineSegment(Vector(54.1, -13.9, 0), Vector(48.1, -13.9, 0)),
    Part.ArcOfCircle(Part.Circle(Vector(48.1, -15.9, 0), Vector(0, 0, 1), 2), math.radians(90), math.radians(270)),
    Part.LineSegment(Vector(16.9, -18, 0), Vector(22.9, -18, 0)),
    Part.ArcOfCircle(Part.Circle(Vector(22.9, -15.9, 0), Vector(0, 0, 1), 2.1), math.radians(-90), math.radians(90)),
    Part.LineSegment(Vector(22.9, -13.8, 0), Vector(16.9, -13.8, 0)),
    Part.ArcOfCircle(Part.Circle(Vector(16.9, -15.9, 0), Vector(0, 0, 1), 2.1), math.radians(90), math.radians(270)),
], False)
sketch4.addConstraint([
    Sketcher.Constraint("Tangent", 0, 2, 1, 1),
    Sketcher.Constraint("Tangent", 1, 2, 2, 1),
    Sketcher.Constraint("Tangent", 2, 2, 3, 1),
    Sketcher.Constraint("Tangent", 3, 2, 0, 1),
    Sketcher.Constraint("Tangent", 4, 2, 5, 1),
    Sketcher.Constraint("Tangent", 5, 2, 6, 1),
    Sketcher.Constraint("Tangent", 6, 2, 7, 1),
    Sketcher.Constraint("Tangent", 7, 2, 4, 1),
    Sketcher.Constraint("Tangent", 8, 2, 9, 1),
    Sketcher.Constraint("Tangent", 9, 2, 10, 1),
    Sketcher.Constraint("Tangent", 10, 2, 11, 1),
    Sketcher.Constraint("Tangent", 11, 2, 8, 1),
    Sketcher.Constraint("Tangent", 12, 2, 13, 1),
    Sketcher.Constraint("Tangent", 13, 2, 14, 1),
    Sketcher.Constraint("Tangent", 14, 2, 15, 1),
    Sketcher.Constraint("Tangent", 15, 2, 12, 1),
    Sketcher.Constraint("Horizontal", 0),
    Sketcher.Constraint("Horizontal", 2),
    Sketcher.Constraint("Horizontal", 4),
    Sketcher.Constraint("Horizontal", 6),
    Sketcher.Constraint("Horizontal", 8),
    Sketcher.Constraint("Horizontal", 10),
    Sketcher.Constraint("Horizontal", 12),
    Sketcher.Constraint("Horizontal", 14),
    Sketcher.Constraint("Equal", 3, 5),
    Sketcher.Constraint("Equal", 7, 13),
    Sketcher.Constraint("Horizontal", 3, 3, 5, 3),
    Sketcher.Constraint("Horizontal", 11, 3, 13, 3),
    Sketcher.Constraint("Vertical", 7, 3, 9, 3),
    Sketcher.Constraint("Vertical", 5, 3, 11, 3),
    Sketcher.Constraint("Vertical", 3, 3, 13, 3),
    Sketcher.Constraint("Vertical", 1, 3, 15, 3),
    Sketcher.Constraint("Equal", 2, 4),
    Sketcher.Constraint("Radius", 1, Q("2.1 mm")),
    Sketcher.Constraint("DistanceX", 0, 2, 0, 1, Q("6 mm")),
    Sketcher.Constraint("Radius", 9, Q("2.05 mm")),
    Sketcher.Constraint("DistanceX", 3, 3, 5, 3, Q("25.112698 mm")),
    Sketcher.Constraint("DistanceY", 9, 3, 7, 3, Q("31.112698 mm")),
    Sketcher.Constraint("DistanceX", -1, 1, 1, 3, Q("16.940851 mm")),
    Sketcher.Constraint("DistanceY", -1, 1, 1, 3, Q("15.178461 mm")),
])
pocket2 = body.newObject("PartDesign::Pocket", "Pocket001")
pocket2.Profile = sketch4
pocket2.Type = "ThroughAll"

doc.recompute()
